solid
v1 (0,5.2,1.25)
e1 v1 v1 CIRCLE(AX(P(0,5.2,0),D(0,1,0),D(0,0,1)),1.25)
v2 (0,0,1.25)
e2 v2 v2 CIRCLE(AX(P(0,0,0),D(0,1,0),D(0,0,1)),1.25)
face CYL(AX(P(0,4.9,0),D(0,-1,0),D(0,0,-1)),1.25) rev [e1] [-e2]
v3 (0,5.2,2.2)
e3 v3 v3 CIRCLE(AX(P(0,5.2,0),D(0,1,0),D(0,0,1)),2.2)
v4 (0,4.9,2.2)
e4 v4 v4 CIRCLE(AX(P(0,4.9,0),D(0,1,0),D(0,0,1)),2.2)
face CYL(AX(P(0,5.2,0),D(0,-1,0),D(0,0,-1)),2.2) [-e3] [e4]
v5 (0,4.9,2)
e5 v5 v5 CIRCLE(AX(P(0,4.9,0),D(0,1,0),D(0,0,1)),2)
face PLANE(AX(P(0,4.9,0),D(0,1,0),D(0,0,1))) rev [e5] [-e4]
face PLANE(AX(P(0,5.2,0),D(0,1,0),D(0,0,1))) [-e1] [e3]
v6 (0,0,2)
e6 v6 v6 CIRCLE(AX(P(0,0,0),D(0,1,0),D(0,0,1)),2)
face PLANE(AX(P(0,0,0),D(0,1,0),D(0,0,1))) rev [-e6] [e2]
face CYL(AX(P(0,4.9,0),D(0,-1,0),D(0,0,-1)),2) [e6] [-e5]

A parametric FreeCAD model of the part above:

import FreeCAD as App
import Part
import Sketcher

V = App.Vector

doc = App.newDocument("Part")
body = doc.addObject("PartDesign::Body", "Body")

sketch1 = body.newObject("Sketcher::SketchObject", "Sketch")
sketch1.AttachmentSupport = (doc.getObject("XZ_Plane"), [""])
sketch1.MapMode = "FlatFace"
sketch1.addGeometry(Part.Circle(V(0, 0, 0), V(0, 0, 1), 2), False)
sketch1.addGeometry(Part.Circle(V(0, 0, 0), V(0, 0, 1), 1.2), False)
sketch1.addConstraint(Sketcher.Constraint("Coincident", 0, 3, -1, 1))
sketch1.addConstraint(Sketcher.Constraint("Coincident", 1, 3, -1, 1))
sketch1.addConstraint(Sketcher.Constraint("Diameter", 0, 4.0))
sketch1.addConstraint(Sketcher.Constraint("Diameter", 1, 2.5))
pad1 = body.newObject("PartDesign::Pad", "Pad")
pad1.Profile = sketch1
pad1.Length = 4.9
pad1.Reversed = True

sketch2 = body.newObject("Sketcher::SketchObject", "Sketch001")
sketch2.AttachmentSupport = (doc.getObject("XZ_Plane"), [""])
sketch2.MapMode = "FlatFace"
sketch2.AttachmentOffset = App.Placement(V(0, 0, -4.9), App.Rotation())
sketch2.addGeometry(Part.Circle(V(0, 0, 0), V(0, 0, 1), 2.2), False)
sketch2.addGeometry(Part.Circle(V(0, 0, 0), V(0, 0, 1), 1.2), False)
sketch2.addConstraint(Sketcher.Constraint("Coincident", 0, 3, -1, 1))
sketch2.addConstraint(Sketcher.Constraint("Coincident", 1, 3, -1, 1))
sketch2.addConstraint(Sketcher.Constraint("Diameter", 0, 4.4))
sketch2.addConstraint(Sketcher.Constraint("Diameter", 1, 2.5))
pad2 = body.newObject("PartDesign::Pad", "Pad001")
pad2.Profile = sketch2
pad2.Length = 0.3
pad2.Reversed = True

doc.recompute()
